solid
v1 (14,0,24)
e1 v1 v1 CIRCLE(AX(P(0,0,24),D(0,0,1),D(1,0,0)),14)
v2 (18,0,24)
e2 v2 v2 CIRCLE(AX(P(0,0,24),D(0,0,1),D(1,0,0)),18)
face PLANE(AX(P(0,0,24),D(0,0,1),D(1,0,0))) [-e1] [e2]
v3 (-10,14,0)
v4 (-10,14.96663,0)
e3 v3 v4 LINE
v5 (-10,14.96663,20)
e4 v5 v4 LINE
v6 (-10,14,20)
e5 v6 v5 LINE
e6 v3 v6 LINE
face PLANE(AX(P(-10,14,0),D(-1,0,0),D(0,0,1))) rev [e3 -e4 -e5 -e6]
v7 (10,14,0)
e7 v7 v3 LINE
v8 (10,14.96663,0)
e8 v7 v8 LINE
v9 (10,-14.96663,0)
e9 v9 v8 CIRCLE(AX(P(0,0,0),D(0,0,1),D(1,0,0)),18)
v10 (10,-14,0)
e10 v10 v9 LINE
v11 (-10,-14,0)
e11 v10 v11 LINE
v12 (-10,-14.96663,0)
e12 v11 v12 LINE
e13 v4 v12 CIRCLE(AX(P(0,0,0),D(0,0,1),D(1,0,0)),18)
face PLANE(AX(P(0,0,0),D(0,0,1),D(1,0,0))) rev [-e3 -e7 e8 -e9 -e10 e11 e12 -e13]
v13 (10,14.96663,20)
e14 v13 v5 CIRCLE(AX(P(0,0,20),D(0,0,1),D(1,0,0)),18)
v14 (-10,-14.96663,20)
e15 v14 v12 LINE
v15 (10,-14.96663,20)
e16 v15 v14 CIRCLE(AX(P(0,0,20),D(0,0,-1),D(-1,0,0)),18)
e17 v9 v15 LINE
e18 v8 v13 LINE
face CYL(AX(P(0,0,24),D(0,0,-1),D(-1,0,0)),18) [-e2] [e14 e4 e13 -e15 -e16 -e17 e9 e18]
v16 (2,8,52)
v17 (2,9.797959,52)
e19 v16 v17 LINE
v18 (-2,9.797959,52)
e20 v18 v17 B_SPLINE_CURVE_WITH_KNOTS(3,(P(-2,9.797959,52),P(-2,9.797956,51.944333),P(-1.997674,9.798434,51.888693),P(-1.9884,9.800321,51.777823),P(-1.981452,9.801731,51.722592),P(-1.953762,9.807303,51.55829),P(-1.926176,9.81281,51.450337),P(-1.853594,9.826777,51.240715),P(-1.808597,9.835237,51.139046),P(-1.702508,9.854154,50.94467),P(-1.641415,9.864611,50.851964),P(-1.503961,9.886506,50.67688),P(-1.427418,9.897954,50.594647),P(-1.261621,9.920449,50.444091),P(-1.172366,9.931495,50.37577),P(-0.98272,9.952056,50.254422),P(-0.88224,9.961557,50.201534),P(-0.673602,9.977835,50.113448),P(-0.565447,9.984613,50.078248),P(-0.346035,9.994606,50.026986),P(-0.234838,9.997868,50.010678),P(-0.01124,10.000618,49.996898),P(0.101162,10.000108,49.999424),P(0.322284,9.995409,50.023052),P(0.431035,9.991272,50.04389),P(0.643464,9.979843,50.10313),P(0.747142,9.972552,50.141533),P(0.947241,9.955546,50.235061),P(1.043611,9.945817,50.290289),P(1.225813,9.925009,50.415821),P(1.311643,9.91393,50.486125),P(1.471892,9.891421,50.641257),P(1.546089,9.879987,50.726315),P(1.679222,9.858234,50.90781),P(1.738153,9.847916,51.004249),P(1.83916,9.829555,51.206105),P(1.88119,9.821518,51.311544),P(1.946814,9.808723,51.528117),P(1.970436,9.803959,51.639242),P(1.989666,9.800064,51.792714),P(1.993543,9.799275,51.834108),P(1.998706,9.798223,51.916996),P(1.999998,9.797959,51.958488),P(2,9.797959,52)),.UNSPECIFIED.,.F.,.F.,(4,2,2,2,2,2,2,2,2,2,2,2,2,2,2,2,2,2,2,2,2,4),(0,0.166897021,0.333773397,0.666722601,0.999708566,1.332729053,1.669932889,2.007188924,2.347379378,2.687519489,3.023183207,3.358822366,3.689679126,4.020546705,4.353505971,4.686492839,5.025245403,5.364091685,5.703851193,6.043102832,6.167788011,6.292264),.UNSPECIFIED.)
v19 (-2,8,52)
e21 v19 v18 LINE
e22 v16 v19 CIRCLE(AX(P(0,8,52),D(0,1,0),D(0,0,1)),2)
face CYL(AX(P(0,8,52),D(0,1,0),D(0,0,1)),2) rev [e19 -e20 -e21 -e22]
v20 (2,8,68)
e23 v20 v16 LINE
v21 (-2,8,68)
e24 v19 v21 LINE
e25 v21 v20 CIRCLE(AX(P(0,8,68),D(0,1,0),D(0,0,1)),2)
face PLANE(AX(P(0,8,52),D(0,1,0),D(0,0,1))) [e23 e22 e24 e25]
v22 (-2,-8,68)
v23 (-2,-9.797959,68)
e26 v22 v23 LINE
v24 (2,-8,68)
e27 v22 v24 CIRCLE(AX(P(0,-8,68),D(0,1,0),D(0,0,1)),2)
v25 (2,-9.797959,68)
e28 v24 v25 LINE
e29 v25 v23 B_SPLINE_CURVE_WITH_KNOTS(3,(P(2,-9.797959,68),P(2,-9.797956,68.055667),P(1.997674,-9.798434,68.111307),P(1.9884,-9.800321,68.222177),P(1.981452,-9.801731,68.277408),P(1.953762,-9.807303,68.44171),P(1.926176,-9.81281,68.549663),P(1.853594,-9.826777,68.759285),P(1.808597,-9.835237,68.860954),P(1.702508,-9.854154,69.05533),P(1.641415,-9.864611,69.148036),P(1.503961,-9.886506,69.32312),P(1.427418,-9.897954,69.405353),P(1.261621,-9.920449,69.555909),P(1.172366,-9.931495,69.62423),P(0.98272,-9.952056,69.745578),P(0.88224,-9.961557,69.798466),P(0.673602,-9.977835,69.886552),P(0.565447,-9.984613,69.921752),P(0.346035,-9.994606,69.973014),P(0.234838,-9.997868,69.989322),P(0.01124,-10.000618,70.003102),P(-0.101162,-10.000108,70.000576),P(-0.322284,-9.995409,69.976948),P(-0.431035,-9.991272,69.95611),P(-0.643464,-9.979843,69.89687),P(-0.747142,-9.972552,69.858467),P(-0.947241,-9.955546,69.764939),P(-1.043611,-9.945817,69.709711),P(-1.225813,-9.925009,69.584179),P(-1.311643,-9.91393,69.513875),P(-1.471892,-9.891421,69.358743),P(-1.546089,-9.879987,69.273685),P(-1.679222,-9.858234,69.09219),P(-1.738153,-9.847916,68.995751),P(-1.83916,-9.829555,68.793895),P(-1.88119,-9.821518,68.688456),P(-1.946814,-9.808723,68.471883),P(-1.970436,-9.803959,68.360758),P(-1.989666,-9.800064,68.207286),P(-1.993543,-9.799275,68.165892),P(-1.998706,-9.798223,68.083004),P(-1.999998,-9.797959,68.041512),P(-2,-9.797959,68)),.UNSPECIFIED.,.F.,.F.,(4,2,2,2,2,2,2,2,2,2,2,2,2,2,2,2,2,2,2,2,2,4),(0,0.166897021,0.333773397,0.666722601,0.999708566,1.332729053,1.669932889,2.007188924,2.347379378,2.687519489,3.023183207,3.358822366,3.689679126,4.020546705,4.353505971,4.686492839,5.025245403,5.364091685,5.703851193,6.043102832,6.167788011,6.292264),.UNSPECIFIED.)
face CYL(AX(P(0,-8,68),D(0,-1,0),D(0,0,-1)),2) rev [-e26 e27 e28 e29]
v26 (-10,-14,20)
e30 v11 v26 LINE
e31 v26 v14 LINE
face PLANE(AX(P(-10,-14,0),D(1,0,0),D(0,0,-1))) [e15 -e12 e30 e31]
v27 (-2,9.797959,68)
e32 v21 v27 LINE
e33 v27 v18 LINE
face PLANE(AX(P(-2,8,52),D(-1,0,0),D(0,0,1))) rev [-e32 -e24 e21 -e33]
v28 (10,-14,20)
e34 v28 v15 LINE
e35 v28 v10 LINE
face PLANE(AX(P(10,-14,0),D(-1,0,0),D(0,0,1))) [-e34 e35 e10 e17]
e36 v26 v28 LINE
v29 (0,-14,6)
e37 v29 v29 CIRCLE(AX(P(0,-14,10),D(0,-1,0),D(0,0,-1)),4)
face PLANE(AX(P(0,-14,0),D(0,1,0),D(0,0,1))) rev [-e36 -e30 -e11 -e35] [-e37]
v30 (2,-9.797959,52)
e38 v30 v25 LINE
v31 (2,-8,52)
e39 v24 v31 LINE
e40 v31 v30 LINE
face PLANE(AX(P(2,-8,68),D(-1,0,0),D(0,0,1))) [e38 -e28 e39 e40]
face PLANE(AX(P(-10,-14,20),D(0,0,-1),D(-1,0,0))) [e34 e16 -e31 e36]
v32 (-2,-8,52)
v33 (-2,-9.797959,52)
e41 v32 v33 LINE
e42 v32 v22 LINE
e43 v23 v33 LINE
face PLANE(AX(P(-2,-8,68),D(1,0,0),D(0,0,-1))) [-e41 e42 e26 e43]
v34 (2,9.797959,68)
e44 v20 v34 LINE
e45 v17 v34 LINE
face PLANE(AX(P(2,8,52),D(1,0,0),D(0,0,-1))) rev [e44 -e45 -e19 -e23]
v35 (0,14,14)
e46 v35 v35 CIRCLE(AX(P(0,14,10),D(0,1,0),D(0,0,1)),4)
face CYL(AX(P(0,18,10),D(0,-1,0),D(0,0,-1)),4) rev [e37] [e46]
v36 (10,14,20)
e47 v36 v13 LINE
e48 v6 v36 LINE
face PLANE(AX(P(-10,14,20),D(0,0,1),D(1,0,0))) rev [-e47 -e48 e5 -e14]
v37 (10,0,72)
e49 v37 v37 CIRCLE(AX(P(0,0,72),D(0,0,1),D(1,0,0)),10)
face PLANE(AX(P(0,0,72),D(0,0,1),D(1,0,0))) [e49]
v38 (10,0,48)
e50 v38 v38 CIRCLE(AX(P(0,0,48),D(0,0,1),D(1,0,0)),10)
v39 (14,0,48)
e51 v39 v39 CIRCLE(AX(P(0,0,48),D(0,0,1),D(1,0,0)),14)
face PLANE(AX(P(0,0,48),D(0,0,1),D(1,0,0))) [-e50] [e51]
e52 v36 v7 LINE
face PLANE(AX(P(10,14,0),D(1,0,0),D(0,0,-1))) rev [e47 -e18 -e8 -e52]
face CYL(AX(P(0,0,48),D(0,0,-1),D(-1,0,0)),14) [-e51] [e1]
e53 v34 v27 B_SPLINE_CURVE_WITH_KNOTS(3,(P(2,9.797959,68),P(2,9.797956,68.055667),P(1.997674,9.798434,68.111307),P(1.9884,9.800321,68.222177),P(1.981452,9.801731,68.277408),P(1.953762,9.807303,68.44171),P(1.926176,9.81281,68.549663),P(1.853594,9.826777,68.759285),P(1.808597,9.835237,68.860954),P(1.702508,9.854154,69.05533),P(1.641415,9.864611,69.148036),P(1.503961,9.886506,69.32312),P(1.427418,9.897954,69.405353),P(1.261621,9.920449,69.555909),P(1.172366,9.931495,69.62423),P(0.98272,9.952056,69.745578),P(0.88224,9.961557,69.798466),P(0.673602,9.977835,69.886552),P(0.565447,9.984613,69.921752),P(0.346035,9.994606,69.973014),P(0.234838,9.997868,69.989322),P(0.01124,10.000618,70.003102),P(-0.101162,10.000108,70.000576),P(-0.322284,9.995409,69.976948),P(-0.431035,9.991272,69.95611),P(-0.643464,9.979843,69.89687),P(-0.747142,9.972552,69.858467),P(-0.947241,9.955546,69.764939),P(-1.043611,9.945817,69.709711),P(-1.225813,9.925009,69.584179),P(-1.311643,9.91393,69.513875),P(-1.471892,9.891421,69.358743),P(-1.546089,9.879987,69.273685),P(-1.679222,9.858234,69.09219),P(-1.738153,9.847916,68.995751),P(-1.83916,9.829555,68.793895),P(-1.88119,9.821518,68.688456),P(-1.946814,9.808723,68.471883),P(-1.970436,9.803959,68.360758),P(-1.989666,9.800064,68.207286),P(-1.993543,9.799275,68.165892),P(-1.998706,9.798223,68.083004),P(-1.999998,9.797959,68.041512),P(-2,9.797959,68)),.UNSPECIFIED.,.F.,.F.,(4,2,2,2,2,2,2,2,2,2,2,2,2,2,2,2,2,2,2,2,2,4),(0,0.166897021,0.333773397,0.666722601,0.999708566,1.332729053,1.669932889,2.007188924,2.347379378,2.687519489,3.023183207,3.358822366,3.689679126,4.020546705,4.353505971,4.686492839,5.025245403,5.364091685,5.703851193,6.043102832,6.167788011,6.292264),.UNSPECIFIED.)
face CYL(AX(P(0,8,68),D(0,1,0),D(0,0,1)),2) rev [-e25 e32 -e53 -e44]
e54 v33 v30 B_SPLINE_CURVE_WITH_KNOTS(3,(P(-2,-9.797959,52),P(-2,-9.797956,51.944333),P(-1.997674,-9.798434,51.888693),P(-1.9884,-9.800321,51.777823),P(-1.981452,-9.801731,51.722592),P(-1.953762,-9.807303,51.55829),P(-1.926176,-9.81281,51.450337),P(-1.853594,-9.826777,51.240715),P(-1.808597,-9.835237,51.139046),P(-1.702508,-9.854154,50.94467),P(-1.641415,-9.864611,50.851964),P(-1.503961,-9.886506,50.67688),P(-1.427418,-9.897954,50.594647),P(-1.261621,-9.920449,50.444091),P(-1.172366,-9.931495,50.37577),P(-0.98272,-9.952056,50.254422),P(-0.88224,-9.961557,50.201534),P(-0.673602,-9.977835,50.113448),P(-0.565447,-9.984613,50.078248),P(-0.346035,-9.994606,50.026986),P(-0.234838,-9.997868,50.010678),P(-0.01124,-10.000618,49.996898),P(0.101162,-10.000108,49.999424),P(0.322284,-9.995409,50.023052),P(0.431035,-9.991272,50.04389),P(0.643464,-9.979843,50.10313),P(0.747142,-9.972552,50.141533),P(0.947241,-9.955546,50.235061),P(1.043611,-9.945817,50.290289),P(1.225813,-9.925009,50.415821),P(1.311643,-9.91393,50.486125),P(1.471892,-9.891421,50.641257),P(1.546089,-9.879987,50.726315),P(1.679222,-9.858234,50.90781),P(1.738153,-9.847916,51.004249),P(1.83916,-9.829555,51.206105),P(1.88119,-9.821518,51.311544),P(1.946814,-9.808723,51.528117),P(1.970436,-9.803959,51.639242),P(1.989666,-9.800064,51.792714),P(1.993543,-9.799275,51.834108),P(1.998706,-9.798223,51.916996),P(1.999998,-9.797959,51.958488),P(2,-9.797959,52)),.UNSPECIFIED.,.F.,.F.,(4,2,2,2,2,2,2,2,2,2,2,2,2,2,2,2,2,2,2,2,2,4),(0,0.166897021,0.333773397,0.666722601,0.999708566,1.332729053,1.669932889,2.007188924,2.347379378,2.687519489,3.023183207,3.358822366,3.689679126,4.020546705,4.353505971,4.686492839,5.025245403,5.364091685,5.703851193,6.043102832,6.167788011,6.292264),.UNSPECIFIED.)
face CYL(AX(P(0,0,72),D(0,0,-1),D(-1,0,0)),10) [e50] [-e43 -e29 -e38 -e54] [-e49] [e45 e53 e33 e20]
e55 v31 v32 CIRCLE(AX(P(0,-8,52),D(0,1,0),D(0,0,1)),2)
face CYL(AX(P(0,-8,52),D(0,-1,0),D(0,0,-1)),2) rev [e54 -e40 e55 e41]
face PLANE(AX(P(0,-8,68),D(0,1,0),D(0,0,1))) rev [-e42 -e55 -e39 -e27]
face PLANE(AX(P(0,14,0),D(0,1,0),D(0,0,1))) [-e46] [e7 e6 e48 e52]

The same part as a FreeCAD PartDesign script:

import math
import FreeCAD as App
import Part
import Sketcher

doc = App.newDocument("Part")
body = doc.addObject("PartDesign::Body", "Body")

sketch1 = body.newObject("Sketcher::SketchObject", "Sketch")
sketch1.AttachmentSupport = (doc.getObject("XY_Plane"), [""])
sketch1.MapMode = "FlatFace"
sketch1.addGeometry(Part.Circle(App.Vector(0, 0, 0), App.Vector(0, 0, 1), 18), False)
sketch1.addConstraint(Sketcher.Constraint("Coincident", 0, 3, -1, 1))
sketch1.addConstraint(Sketcher.Constraint("Diameter", 0, 36.0))
pad1 = body.newObject("PartDesign::Pad", "Pad")
pad1.Profile = sketch1
pad1.Length = 24

sketch2 = body.newObject("Sketcher::SketchObject", "Sketch001")
sketch2.AttachmentSupport = (doc.getObject("XY_Plane"), [""])
sketch2.MapMode = "FlatFace"
sketch2.AttachmentOffset = App.Placement(App.Vector(0, 0, 24), App.Rotation())
sketch2.addGeometry(Part.Circle(App.Vector(0, 0, 0), App.Vector(0, 0, 1), 14), False)
sketch2.addConstraint(Sketcher.Constraint("Coincident", 0, 3, -1, 1))
sketch2.addConstraint(Sketcher.Constraint("Diameter", 0, 28.0))
pad2 = body.newObject("PartDesign::Pad", "Pad001")
pad2.Profile = sketch2
pad2.Length = 24

sketch3 = body.newObject("Sketcher::SketchObject", "Sketch002")
sketch3.AttachmentSupport = (doc.getObject("XY_Plane"), [""])
sketch3.MapMode = "FlatFace"
sketch3.AttachmentOffset = App.Placement(App.Vector(0, 0, 48), App.Rotation())
sketch3.addGeometry(Part.Circle(App.Vector(0, 0, 0), App.Vector(0, 0, 1), 10), False)
sketch3.addConstraint(Sketcher.Constraint("Coincident", 0, 3, -1, 1))
sketch3.addConstraint(Sketcher.Constraint("Diameter", 0, 20.0))
pad3 = body.newObject("PartDesign::Pad", "Pad002")
pad3.Profile = sketch3
pad3.Length = 24

sketch4 = body.newObject("Sketcher::SketchObject", "Sketch003")
sketch4.AttachmentSupport = (doc.getObject("XZ_Plane"), [""])
sketch4.MapMode = "FlatFace"
sketch4.AttachmentOffset = App.Placement(App.Vector(0, 0, -10), App.Rotation())
sketch4.addGeometry(Part.LineSegment(App.Vector(2, 68, 0), App.Vector(2, 52, 0)), False)
sketch4.addGeometry(Part.ArcOfCircle(Part.Circle(App.Vector(0, 52, 0), App.Vector(0, 0, 1), 2), math.radians(180), math.radians(360)), False)
sketch4.addGeometry(Part.LineSegment(App.Vector(-2, 52, 0), App.Vector(-2, 68, 0)), False)
sketch4.addGeometry(Part.ArcOfCircle(Part.Circle(App.Vector(0, 68, 0), App.Vector(0, 0, 1), 2), math.radians(0), math.radians(180)), False)
sketch4.addConstraint(Sketcher.Constraint("Tangent", 0, 2, 1, 2))
sketch4.addConstraint(Sketcher.Constraint("Tangent", 1, 1, 2, 1))
sketch4.addConstraint(Sketcher.Constraint("Tangent", 2, 2, 3, 2))
sketch4.addConstraint(Sketcher.Constraint("Tangent", 3, 1, 0, 1))
sketch4.addConstraint(Sketcher.Constraint("Vertical", 0))
sketch4.addConstraint(Sketcher.Constraint("Vertical", 2))
sketch4.addConstraint(Sketcher.Constraint("PointOnObject", 1, 3, -2))
sketch4.addConstraint(Sketcher.Constraint("Radius", 1, 2.0))
sketch4.addConstraint(Sketcher.Constraint("DistanceY", 0, 2, 0, 1, 16.0))
sketch4.addConstraint(Sketcher.Constraint("DistanceY", -1, 1, 1, 3, 52.0))
pocket1 = body.newObject("PartDesign::Pocket", "Pocket")
pocket1.Profile = sketch4
pocket1.Length = 2
pocket1.Reversed = True

sketch5 = body.newObject("Sketcher::SketchObject", "Sketch004")
sketch5.AttachmentSupport = (doc.getObject("XZ_Plane"), [""])
sketch5.MapMode = "FlatFace"
sketch5.AttachmentOffset = App.Placement(App.Vector(0, 0, 10), App.Rotation())
sketch5.addGeometry(Part.LineSegment(App.Vector(-2, 52, 0), App.Vector(-2, 68, 0)), False)
sketch5.addGeometry(Part.ArcOfCircle(Part.Circle(App.Vector(0, 68, 0), App.Vector(0, 0, 1), 2), math.radians(0), math.radians(180)), False)
sketch5.addGeometry(Part.LineSegment(App.Vector(2, 68, 0), App.Vector(2, 52, 0)), False)
sketch5.addGeometry(Part.ArcOfCircle(Part.Circle(App.Vector(0, 52, 0), App.Vector(0, 0, 1), 2), math.radians(180), math.radians(360)), False)
sketch5.addConstraint(Sketcher.Constraint("Tangent", 0, 2, 1, 2))
sketch5.addConstraint(Sketcher.Constraint("Tangent", 1, 1, 2, 1))
sketch5.addConstraint(Sketcher.Constraint("Tangent", 2, 2, 3, 2))
sketch5.addConstraint(Sketcher.Constraint("Tangent", 3, 1, 0, 1))
sketch5.addConstraint(Sketcher.Constraint("Vertical", 0))
sketch5.addConstraint(Sketcher.Constraint("Vertical", 2))
sketch5.addConstraint(Sketcher.Constraint("PointOnObject", 1, 3, -2))
sketch5.addConstraint(Sketcher.Constraint("Radius", 1, 2.0))
sketch5.addConstraint(Sketcher.Constraint("DistanceY", 0, 1, 0, 2, 16.0))
sketch5.addConstraint(Sketcher.Constraint("DistanceY", -1, 1, 1, 3, 68.0))
pocket2 = body.newObject("PartDesign::Pocket", "Pocket001")
pocket2.Profile = sketch5
pocket2.Length = 2

sketch6 = body.newObject("Sketcher::SketchObject", "Sketch005")
sketch6.AttachmentSupport = (doc.getObject("XZ_Plane"), [""])
sketch6.MapMode = "FlatFace"
sketch6.AttachmentOffset = App.Placement(App.Vector(0, 0, -18), App.Rotation())
sketch6.addGeometry(Part.LineSegment(App.Vector(-10, 0, 0), App.Vector(-10, 20, 0)), False)
sketch6.addGeometry(Part.LineSegment(App.Vector(-10, 20, 0), App.Vector(10, 20, 0)), False)
sketch6.addGeometry(Part.LineSegment(App.Vector(10, 20, 0), App.Vector(10, 0, 0)), False)
sketch6.addGeometry(Part.LineSegment(App.Vector(10, 0, 0), App.Vector(-10, 0, 0)), False)
sketch6.addConstraint(Sketcher.Constraint("Coincident", 0, 2, 1, 1))
sketch6.addConstraint(Sketcher.Constraint("Coincident", 1, 2, 2, 1))
sketch6.addConstraint(Sketcher.Constraint("Coincident", 2, 2, 3, 1))
sketch6.addConstraint(Sketcher.Constraint("Coincident", 3, 2, 0, 1))
sketch6.addConstraint(Sketcher.Constraint("Vertical", 0))
sketch6.addConstraint(Sketcher.Constraint("Horizontal", 1))
sketch6.addConstraint(Sketcher.Constraint("Vertical", 2))
sketch6.addConstraint(Sketcher.Constraint("Horizontal", 3))
sketch6.addConstraint(Sketcher.Constraint("Symmetric", 2, 2, 3, 2, -1, 1))
sketch6.addConstraint(Sketcher.Constraint("Equal", 3, 0))
sketch6.addConstraint(Sketcher.Constraint("DistanceX", 1, 1, 1, 2, 20.0))
pocket3 = body.newObject("PartDesign::Pocket", "Pocket002")
pocket3.Profile = sketch6
pocket3.Length = 4
pocket3.Reversed = True

sketch7 = body.newObject("Sketcher::SketchObject", "Sketch006")
sketch7.AttachmentSupport = (doc.getObject("XZ_Plane"), [""])
sketch7.MapMode = "FlatFace"
sketch7.AttachmentOffset = App.Placement(App.Vector(0, 0, 18), App.Rotation())
sketch7.addGeometry(Part.LineSegment(App.Vector(-10, 0, 0), App.Vector(-10, 20, 0)), False)
sketch7.addGeometry(Part.LineSegment(App.Vector(-10, 20, 0), App.Vector(10, 20, 0)), False)
sketch7.addGeometry(Part.LineSegment(App.Vector(10, 20, 0), App.Vector(10, 0, 0)), False)
sketch7.addGeometry(Part.LineSegment(App.Vector(10, 0, 0), App.Vector(-10, 0, 0)), False)
sketch7.addConstraint(Sketcher.Constraint("Coincident", 0, 2, 1, 1))
sketch7.addConstraint(Sketcher.Constraint("Coincident", 1, 2, 2, 1))
sketch7.addConstraint(Sketcher.Constraint("Coincident", 2, 2, 3, 1))
sketch7.addConstraint(Sketcher.Constraint("Coincident", 3, 2, 0, 1))
sketch7.addConstraint(Sketcher.Constraint("Vertical", 0))
sketch7.addConstraint(Sketcher.Constraint("Horizontal", 1))
sketch7.addConstraint(Sketcher.Constraint("Vertical", 2))
sketch7.addConstraint(Sketcher.Constraint("Horizontal", 3))
sketch7.addConstraint(Sketcher.Constraint("Symmetric", 2, 2, 3, 2, -1, 1))
sketch7.addConstraint(Sketcher.Constraint("Equal", 3, 0))
sketch7.addConstraint(Sketcher.Constraint("DistanceX", 1, 1, 1, 2, 20.0))
pocket4 = body.newObject("PartDesign::Pocket", "Pocket003")
pocket4.Profile = sketch7
pocket4.Length = 4

sketch8 = body.newObject("Sketcher::SketchObject", "Sketch007")
sketch8.AttachmentSupport = (doc.getObject("XZ_Plane"), [""])
sketch8.MapMode = "FlatFace"
sketch8.AttachmentOffset = App.Placement(App.Vector(0, 0, 14), App.Rotation())
sketch8.addGeometry(Part.Circle(App.Vector(0, 10, 0), App.Vector(0, 0, 1), 4), False)
sketch8.addConstraint(Sketcher.Constraint("PointOnObject", 0, 3, -2))
sketch8.addConstraint(Sketcher.Constraint("Diameter", 0, 8.0))
sketch8.addConstraint(Sketcher.Constraint("DistanceY", -1, 1, 0, 3, 10.0))
pocket5 = body.newObject("PartDesign::Pocket", "Pocket004")
pocket5.Profile = sketch8
pocket5.Type = "ThroughAll"

doc.recompute()
